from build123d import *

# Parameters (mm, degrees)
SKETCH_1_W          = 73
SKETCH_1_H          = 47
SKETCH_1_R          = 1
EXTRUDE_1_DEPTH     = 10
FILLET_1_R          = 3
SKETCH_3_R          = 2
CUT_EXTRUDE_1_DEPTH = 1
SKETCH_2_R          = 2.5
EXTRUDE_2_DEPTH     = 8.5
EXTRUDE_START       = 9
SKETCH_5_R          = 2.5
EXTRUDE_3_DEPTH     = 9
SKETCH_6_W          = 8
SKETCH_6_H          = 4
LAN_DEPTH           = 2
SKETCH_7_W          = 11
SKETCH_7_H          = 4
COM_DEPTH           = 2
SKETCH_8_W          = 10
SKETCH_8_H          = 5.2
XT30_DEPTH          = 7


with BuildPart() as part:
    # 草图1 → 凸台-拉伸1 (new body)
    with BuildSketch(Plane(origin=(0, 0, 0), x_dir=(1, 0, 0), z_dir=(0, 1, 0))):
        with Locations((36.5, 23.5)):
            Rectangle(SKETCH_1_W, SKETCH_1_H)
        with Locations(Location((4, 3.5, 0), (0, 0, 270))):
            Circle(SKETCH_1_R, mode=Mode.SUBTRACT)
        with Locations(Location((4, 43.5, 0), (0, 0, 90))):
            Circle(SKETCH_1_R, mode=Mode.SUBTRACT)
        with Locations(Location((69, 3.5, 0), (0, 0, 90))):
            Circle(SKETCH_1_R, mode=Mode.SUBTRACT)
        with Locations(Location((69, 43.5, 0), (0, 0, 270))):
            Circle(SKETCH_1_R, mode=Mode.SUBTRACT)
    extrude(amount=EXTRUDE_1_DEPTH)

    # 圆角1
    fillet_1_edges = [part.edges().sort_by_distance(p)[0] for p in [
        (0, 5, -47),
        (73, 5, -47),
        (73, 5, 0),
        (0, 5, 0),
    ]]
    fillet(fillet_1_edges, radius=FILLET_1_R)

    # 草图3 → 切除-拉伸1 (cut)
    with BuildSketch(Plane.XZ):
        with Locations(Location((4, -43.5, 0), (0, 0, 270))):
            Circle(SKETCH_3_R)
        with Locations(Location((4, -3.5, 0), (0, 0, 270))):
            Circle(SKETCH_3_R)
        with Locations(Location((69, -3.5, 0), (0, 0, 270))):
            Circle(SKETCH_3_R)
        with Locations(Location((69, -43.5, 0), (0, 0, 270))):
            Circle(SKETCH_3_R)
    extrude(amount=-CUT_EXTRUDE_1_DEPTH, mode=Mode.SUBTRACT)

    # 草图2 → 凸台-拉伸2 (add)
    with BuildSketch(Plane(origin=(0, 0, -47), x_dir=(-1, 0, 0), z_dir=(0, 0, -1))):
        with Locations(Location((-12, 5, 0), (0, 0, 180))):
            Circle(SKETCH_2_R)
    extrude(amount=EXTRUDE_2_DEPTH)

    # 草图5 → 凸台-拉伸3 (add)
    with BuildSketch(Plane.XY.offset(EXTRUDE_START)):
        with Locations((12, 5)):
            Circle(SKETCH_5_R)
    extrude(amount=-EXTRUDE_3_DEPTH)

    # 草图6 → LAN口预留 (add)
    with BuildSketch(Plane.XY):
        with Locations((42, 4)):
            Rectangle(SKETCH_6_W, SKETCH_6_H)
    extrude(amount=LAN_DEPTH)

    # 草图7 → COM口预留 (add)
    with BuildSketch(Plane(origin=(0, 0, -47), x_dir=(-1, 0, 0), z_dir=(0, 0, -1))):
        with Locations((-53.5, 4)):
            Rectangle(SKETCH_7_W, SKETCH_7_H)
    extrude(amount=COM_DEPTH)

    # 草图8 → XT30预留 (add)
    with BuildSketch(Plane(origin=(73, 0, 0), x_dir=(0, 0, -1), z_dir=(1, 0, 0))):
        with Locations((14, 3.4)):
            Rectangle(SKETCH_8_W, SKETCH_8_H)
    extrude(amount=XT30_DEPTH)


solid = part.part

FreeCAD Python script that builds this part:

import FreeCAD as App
import Part
import Sketcher
from FreeCAD import Vector


def edges_at(feature, points):
    """Names of the edges that pass closest to the given points."""
    edges = feature.Shape.Edges
    near = lambda p: min(range(len(edges)), key=lambda i: edges[i].distToShape(Part.Vertex(*p))[0])
    return sorted({f"Edge{near(p) + 1}" for p in points})


def add_polygon(sketch, points):
    """Adds a closed chain of lines whose ends are joined by coincident constraints."""
    first, n = sketch.GeometryCount, len(points)
    for a, b in zip(points, points[1:] + points[:1]):
        sketch.addGeometry(Part.LineSegment(App.Vector(*a, 0), App.Vector(*b, 0)), False)
    for i in range(n):
        sketch.addConstraint(Sketcher.Constraint("Coincident", first + i, 2, first + (i + 1) % n, 1))

doc = App.newDocument("Part")
body = doc.addObject("PartDesign::Body", "Body")

sketch1 = body.newObject("Sketcher::SketchObject", "Sketch")
sketch1.AttachmentSupport = (doc.getObject("XZ_Plane"), [""])
sketch1.MapMode = "FlatFace"
add_polygon(sketch1, [(0, -47), (0, 0), (73, 0), (73, -47)])
sketch1.addGeometry(Part.Circle(Vector(4, -3.5, 0), Vector(0, 0, 1), 1), False)
sketch1.addGeometry(Part.Circle(Vector(69, -3.5, 0), Vector(0, 0, 1), 1), False)
sketch1.addGeometry(Part.Circle(Vector(4, -43.5, 0), Vector(0, 0, 1), 1), False)
sketch1.addGeometry(Part.Circle(Vector(69, -43.5, 0), Vector(0, 0, 1), 1), False)
sketch1.addConstraint(Sketcher.Constraint("Vertical", 0))
sketch1.addConstraint(Sketcher.Constraint("Horizontal", 1))
sketch1.addConstraint(Sketcher.Constraint("Vertical", 2))
sketch1.addConstraint(Sketcher.Constraint("Horizontal", 3))
sketch1.addConstraint(Sketcher.Constraint("Coincident", 0, 2, -1, 1))
sketch1.addConstraint(Sketcher.Constraint("Equal", 4, 5))
sketch1.addConstraint(Sketcher.Constraint("Equal", 5, 6))
sketch1.addConstraint(Sketcher.Constraint("Equal", 6, 7))
sketch1.addConstraint(Sketcher.Constraint("Horizontal", 4, 3, 5, 3))
sketch1.addConstraint(Sketcher.Constraint("Horizontal", 6, 3, 7, 3))
sketch1.addConstraint(Sketcher.Constraint("Vertical", 4, 3, 6, 3))
sketch1.addConstraint(Sketcher.Constraint("Vertical", 5, 3, 7, 3))
sketch1.addConstraint(Sketcher.Constraint("Diameter", 4, 2.0))
sketch1.addConstraint(Sketcher.Constraint("DistanceX", 1, 1, 1, 2, 73.0))
sketch1.addConstraint(Sketcher.Constraint("DistanceY", 0, 1, 0, 2, 47.0))
sketch1.addConstraint(Sketcher.Constraint("DistanceX", -1, 1, 4, 3, 4.0))
sketch1.addConstraint(Sketcher.Constraint("DistanceX", -1, 1, 5, 3, 69.0))
sketch1.addConstraint(Sketcher.Constraint("DistanceY", 6, 3, 4, 3, 40.0))
sketch1.addConstraint(Sketcher.Constraint("DistanceY", 4, 3, -1, 1, 3.5))
pad1 = body.newObject("PartDesign::Pad", "Pad")
pad1.Profile = sketch1
pad1.Length = 10
pad1.Reversed = True
doc.recompute()

fillet = body.newObject("PartDesign::Fillet", "Fillet")
fillet.Base = (pad1, edges_at(pad1, [
    (0, 5, -47),
    (73, 5, -47),
    (73, 5, 0),
    (0, 5, 0),
]))
fillet.Radius = 3

sketch2 = body.newObject("Sketcher::SketchObject", "Sketch001")
sketch2.AttachmentSupport = (doc.getObject("XZ_Plane"), [""])
sketch2.MapMode = "FlatFace"
sketch2.addGeometry(Part.Circle(Vector(4, -43.5, 0), Vector(0, 0, 1), 2), False)
sketch2.addGeometry(Part.Circle(Vector(4, -3.5, 0), Vector(0, 0, 1), 2), False)
sketch2.addGeometry(Part.Circle(Vector(69, -3.5, 0), Vector(0, 0, 1), 2), False)
sketch2.addGeometry(Part.Circle(Vector(69, -43.5, 0), Vector(0, 0, 1), 2), False)
sketch2.addConstraint(Sketcher.Constraint("Equal", 0, 1))
sketch2.addConstraint(Sketcher.Constraint("Equal", 1, 2))
sketch2.addConstraint(Sketcher.Constraint("Equal", 2, 3))
sketch2.addConstraint(Sketcher.Constraint("Horizontal", 1, 3, 2, 3))
sketch2.addConstraint(Sketcher.Constraint("Horizontal", 0, 3, 3, 3))
sketch2.addConstraint(Sketcher.Constraint("Vertical", 0, 3, 1, 3))
sketch2.addConstraint(Sketcher.Constraint("Vertical", 2, 3, 3, 3))
sketch2.addConstraint(Sketcher.Constraint("Diameter", 0, 4.0))
sketch2.addConstraint(Sketcher.Constraint("DistanceX", -1, 1, 0, 3, 4.0))
sketch2.addConstraint(Sketcher.Constraint("DistanceX", -1, 1, 2, 3, 69.0))
sketch2.addConstraint(Sketcher.Constraint("DistanceY", 0, 3, 1, 3, 40.0))
sketch2.addConstraint(Sketcher.Constraint("DistanceY", 0, 3, -1, 1, 43.5))
pocket1 = body.newObject("PartDesign::Pocket", "Pocket")
pocket1.Profile = sketch2
pocket1.Length = 1

sketch3 = body.newObject("Sketcher::SketchObject", "Sketch002")
sketch3.AttachmentSupport = (doc.getObject("XY_Plane"), [""])
sketch3.MapMode = "FlatFace"
sketch3.AttachmentOffset = App.Placement(Vector(0, 0, -47), App.Rotation())
sketch3.addGeometry(Part.Circle(Vector(12, 5, 0), Vector(0, 0, 1), 2.5), False)
sketch3.addConstraint(Sketcher.Constraint("Diameter", 0, 5.0))
sketch3.addConstraint(Sketcher.Constraint("DistanceX", -1, 1, 0, 3, 12.0))
sketch3.addConstraint(Sketcher.Constraint("DistanceY", -1, 1, 0, 3, 5.0))
pad2 = body.newObject("PartDesign::Pad", "Pad001")
pad2.Profile = sketch3
pad2.Length = 8.5
pad2.Reversed = True

sketch4 = body.newObject("Sketcher::SketchObject", "Sketch003")
sketch4.AttachmentSupport = (doc.getObject("XY_Plane"), [""])
sketch4.MapMode = "FlatFace"
sketch4.AttachmentOffset = App.Placement(Vector(0, 0, 9), App.Rotation())
sketch4.addGeometry(Part.Circle(Vector(12, 5, 0), Vector(0, 0, 1), 2.5), False)
sketch4.addConstraint(Sketcher.Constraint("Diameter", 0, 5.0))
sketch4.addConstraint(Sketcher.Constraint("DistanceX", -1, 1, 0, 3, 12.0))
sketch4.addConstraint(Sketcher.Constraint("DistanceY", -1, 1, 0, 3, 5.0))
pad3 = body.newObject("PartDesign::Pad", "Pad002")
pad3.Profile = sketch4
pad3.Length = 9
pad3.Reversed = True

sketch5 = body.newObject("Sketcher::SketchObject", "Sketch004")
sketch5.AttachmentSupport = (doc.getObject("XY_Plane"), [""])
sketch5.MapMode = "FlatFace"
add_polygon(sketch5, [(38, 6), (38, 2), (46, 2), (46, 6)])
sketch5.addConstraint(Sketcher.Constraint("Vertical", 0))
sketch5.addConstraint(Sketcher.Constraint("Horizontal", 1))
sketch5.addConstraint(Sketcher.Constraint("Vertical", 2))
sketch5.addConstraint(Sketcher.Constraint("Horizontal", 3))
sketch5.addConstraint(Sketcher.Constraint("DistanceX", 1, 1, 1, 2, 8.0))
sketch5.addConstraint(Sketcher.Constraint("DistanceY", 0, 2, 0, 1, 4.0))
sketch5.addConstraint(Sketcher.Constraint("DistanceX", -1, 1, 0, 2, 38.0))
sketch5.addConstraint(Sketcher.Constraint("DistanceY", -1, 1, 0, 2, 2.0))
pad4 = body.newObject("PartDesign::Pad", "Pad003")
pad4.Profile = sketch5
pad4.Length = 2

sketch6 = body.newObject("Sketcher::SketchObject", "Sketch005")
sketch6.AttachmentSupport = (doc.getObject("XY_Plane"), [""])
sketch6.MapMode = "FlatFace"
sketch6.AttachmentOffset = App.Placement(Vector(0, 0, -47), App.Rotation())
add_polygon(sketch6, [(59, 6), (59, 2), (48, 2), (48, 6)])
sketch6.addConstraint(Sketcher.Constraint("Vertical", 0))
sketch6.addConstraint(Sketcher.Constraint("Horizontal", 1))
sketch6.addConstraint(Sketcher.Constraint("Vertical", 2))
sketch6.addConstraint(Sketcher.Constraint("Horizontal", 3))
sketch6.addConstraint(Sketcher.Constraint("DistanceX", 1, 2, 1, 1, 11.0))
sketch6.addConstraint(Sketcher.Constraint("DistanceY", 0, 2, 0, 1, 4.0))
sketch6.addConstraint(Sketcher.Constraint("DistanceX", -1, 1, 0, 2, 59.0))
sketch6.addConstraint(Sketcher.Constraint("DistanceY", -1, 1, 0, 2, 2.0))
pad5 = body.newObject("PartDesign::Pad", "Pad004")
pad5.Profile = sketch6
pad5.Length = 2
pad5.Reversed = True

sketch7 = body.newObject("Sketcher::SketchObject", "Sketch006")
sketch7.AttachmentSupport = (doc.getObject("YZ_Plane"), [""])
sketch7.MapMode = "FlatFace"
sketch7.AttachmentOffset = App.Placement(Vector(0, 0, 73), App.Rotation())
add_polygon(sketch7, [(6, -9), (1, -9), (1, -19), (6, -19)])
sketch7.addConstraint(Sketcher.Constraint("Horizontal", 0))
sketch7.addConstraint(Sketcher.Constraint("Vertical", 1))
sketch7.addConstraint(Sketcher.Constraint("Horizontal", 2))
sketch7.addConstraint(Sketcher.Constraint("Vertical", 3))
sketch7.addConstraint(Sketcher.Constraint("DistanceY", 1, 2, 1, 1, 10.0))
sketch7.addConstraint(Sketcher.Constraint("DistanceX", 0, 2, 0, 1, 5.2))
sketch7.addConstraint(Sketcher.Constraint("DistanceY", 0, 2, -1, 1, 9.0))
sketch7.addConstraint(Sketcher.Constraint("DistanceX", -1, 1, 2, 2, 6.0))
pad6 = body.newObject("PartDesign::Pad", "Pad005")
pad6.Profile = sketch7
pad6.Length = 7

doc.recompute()
